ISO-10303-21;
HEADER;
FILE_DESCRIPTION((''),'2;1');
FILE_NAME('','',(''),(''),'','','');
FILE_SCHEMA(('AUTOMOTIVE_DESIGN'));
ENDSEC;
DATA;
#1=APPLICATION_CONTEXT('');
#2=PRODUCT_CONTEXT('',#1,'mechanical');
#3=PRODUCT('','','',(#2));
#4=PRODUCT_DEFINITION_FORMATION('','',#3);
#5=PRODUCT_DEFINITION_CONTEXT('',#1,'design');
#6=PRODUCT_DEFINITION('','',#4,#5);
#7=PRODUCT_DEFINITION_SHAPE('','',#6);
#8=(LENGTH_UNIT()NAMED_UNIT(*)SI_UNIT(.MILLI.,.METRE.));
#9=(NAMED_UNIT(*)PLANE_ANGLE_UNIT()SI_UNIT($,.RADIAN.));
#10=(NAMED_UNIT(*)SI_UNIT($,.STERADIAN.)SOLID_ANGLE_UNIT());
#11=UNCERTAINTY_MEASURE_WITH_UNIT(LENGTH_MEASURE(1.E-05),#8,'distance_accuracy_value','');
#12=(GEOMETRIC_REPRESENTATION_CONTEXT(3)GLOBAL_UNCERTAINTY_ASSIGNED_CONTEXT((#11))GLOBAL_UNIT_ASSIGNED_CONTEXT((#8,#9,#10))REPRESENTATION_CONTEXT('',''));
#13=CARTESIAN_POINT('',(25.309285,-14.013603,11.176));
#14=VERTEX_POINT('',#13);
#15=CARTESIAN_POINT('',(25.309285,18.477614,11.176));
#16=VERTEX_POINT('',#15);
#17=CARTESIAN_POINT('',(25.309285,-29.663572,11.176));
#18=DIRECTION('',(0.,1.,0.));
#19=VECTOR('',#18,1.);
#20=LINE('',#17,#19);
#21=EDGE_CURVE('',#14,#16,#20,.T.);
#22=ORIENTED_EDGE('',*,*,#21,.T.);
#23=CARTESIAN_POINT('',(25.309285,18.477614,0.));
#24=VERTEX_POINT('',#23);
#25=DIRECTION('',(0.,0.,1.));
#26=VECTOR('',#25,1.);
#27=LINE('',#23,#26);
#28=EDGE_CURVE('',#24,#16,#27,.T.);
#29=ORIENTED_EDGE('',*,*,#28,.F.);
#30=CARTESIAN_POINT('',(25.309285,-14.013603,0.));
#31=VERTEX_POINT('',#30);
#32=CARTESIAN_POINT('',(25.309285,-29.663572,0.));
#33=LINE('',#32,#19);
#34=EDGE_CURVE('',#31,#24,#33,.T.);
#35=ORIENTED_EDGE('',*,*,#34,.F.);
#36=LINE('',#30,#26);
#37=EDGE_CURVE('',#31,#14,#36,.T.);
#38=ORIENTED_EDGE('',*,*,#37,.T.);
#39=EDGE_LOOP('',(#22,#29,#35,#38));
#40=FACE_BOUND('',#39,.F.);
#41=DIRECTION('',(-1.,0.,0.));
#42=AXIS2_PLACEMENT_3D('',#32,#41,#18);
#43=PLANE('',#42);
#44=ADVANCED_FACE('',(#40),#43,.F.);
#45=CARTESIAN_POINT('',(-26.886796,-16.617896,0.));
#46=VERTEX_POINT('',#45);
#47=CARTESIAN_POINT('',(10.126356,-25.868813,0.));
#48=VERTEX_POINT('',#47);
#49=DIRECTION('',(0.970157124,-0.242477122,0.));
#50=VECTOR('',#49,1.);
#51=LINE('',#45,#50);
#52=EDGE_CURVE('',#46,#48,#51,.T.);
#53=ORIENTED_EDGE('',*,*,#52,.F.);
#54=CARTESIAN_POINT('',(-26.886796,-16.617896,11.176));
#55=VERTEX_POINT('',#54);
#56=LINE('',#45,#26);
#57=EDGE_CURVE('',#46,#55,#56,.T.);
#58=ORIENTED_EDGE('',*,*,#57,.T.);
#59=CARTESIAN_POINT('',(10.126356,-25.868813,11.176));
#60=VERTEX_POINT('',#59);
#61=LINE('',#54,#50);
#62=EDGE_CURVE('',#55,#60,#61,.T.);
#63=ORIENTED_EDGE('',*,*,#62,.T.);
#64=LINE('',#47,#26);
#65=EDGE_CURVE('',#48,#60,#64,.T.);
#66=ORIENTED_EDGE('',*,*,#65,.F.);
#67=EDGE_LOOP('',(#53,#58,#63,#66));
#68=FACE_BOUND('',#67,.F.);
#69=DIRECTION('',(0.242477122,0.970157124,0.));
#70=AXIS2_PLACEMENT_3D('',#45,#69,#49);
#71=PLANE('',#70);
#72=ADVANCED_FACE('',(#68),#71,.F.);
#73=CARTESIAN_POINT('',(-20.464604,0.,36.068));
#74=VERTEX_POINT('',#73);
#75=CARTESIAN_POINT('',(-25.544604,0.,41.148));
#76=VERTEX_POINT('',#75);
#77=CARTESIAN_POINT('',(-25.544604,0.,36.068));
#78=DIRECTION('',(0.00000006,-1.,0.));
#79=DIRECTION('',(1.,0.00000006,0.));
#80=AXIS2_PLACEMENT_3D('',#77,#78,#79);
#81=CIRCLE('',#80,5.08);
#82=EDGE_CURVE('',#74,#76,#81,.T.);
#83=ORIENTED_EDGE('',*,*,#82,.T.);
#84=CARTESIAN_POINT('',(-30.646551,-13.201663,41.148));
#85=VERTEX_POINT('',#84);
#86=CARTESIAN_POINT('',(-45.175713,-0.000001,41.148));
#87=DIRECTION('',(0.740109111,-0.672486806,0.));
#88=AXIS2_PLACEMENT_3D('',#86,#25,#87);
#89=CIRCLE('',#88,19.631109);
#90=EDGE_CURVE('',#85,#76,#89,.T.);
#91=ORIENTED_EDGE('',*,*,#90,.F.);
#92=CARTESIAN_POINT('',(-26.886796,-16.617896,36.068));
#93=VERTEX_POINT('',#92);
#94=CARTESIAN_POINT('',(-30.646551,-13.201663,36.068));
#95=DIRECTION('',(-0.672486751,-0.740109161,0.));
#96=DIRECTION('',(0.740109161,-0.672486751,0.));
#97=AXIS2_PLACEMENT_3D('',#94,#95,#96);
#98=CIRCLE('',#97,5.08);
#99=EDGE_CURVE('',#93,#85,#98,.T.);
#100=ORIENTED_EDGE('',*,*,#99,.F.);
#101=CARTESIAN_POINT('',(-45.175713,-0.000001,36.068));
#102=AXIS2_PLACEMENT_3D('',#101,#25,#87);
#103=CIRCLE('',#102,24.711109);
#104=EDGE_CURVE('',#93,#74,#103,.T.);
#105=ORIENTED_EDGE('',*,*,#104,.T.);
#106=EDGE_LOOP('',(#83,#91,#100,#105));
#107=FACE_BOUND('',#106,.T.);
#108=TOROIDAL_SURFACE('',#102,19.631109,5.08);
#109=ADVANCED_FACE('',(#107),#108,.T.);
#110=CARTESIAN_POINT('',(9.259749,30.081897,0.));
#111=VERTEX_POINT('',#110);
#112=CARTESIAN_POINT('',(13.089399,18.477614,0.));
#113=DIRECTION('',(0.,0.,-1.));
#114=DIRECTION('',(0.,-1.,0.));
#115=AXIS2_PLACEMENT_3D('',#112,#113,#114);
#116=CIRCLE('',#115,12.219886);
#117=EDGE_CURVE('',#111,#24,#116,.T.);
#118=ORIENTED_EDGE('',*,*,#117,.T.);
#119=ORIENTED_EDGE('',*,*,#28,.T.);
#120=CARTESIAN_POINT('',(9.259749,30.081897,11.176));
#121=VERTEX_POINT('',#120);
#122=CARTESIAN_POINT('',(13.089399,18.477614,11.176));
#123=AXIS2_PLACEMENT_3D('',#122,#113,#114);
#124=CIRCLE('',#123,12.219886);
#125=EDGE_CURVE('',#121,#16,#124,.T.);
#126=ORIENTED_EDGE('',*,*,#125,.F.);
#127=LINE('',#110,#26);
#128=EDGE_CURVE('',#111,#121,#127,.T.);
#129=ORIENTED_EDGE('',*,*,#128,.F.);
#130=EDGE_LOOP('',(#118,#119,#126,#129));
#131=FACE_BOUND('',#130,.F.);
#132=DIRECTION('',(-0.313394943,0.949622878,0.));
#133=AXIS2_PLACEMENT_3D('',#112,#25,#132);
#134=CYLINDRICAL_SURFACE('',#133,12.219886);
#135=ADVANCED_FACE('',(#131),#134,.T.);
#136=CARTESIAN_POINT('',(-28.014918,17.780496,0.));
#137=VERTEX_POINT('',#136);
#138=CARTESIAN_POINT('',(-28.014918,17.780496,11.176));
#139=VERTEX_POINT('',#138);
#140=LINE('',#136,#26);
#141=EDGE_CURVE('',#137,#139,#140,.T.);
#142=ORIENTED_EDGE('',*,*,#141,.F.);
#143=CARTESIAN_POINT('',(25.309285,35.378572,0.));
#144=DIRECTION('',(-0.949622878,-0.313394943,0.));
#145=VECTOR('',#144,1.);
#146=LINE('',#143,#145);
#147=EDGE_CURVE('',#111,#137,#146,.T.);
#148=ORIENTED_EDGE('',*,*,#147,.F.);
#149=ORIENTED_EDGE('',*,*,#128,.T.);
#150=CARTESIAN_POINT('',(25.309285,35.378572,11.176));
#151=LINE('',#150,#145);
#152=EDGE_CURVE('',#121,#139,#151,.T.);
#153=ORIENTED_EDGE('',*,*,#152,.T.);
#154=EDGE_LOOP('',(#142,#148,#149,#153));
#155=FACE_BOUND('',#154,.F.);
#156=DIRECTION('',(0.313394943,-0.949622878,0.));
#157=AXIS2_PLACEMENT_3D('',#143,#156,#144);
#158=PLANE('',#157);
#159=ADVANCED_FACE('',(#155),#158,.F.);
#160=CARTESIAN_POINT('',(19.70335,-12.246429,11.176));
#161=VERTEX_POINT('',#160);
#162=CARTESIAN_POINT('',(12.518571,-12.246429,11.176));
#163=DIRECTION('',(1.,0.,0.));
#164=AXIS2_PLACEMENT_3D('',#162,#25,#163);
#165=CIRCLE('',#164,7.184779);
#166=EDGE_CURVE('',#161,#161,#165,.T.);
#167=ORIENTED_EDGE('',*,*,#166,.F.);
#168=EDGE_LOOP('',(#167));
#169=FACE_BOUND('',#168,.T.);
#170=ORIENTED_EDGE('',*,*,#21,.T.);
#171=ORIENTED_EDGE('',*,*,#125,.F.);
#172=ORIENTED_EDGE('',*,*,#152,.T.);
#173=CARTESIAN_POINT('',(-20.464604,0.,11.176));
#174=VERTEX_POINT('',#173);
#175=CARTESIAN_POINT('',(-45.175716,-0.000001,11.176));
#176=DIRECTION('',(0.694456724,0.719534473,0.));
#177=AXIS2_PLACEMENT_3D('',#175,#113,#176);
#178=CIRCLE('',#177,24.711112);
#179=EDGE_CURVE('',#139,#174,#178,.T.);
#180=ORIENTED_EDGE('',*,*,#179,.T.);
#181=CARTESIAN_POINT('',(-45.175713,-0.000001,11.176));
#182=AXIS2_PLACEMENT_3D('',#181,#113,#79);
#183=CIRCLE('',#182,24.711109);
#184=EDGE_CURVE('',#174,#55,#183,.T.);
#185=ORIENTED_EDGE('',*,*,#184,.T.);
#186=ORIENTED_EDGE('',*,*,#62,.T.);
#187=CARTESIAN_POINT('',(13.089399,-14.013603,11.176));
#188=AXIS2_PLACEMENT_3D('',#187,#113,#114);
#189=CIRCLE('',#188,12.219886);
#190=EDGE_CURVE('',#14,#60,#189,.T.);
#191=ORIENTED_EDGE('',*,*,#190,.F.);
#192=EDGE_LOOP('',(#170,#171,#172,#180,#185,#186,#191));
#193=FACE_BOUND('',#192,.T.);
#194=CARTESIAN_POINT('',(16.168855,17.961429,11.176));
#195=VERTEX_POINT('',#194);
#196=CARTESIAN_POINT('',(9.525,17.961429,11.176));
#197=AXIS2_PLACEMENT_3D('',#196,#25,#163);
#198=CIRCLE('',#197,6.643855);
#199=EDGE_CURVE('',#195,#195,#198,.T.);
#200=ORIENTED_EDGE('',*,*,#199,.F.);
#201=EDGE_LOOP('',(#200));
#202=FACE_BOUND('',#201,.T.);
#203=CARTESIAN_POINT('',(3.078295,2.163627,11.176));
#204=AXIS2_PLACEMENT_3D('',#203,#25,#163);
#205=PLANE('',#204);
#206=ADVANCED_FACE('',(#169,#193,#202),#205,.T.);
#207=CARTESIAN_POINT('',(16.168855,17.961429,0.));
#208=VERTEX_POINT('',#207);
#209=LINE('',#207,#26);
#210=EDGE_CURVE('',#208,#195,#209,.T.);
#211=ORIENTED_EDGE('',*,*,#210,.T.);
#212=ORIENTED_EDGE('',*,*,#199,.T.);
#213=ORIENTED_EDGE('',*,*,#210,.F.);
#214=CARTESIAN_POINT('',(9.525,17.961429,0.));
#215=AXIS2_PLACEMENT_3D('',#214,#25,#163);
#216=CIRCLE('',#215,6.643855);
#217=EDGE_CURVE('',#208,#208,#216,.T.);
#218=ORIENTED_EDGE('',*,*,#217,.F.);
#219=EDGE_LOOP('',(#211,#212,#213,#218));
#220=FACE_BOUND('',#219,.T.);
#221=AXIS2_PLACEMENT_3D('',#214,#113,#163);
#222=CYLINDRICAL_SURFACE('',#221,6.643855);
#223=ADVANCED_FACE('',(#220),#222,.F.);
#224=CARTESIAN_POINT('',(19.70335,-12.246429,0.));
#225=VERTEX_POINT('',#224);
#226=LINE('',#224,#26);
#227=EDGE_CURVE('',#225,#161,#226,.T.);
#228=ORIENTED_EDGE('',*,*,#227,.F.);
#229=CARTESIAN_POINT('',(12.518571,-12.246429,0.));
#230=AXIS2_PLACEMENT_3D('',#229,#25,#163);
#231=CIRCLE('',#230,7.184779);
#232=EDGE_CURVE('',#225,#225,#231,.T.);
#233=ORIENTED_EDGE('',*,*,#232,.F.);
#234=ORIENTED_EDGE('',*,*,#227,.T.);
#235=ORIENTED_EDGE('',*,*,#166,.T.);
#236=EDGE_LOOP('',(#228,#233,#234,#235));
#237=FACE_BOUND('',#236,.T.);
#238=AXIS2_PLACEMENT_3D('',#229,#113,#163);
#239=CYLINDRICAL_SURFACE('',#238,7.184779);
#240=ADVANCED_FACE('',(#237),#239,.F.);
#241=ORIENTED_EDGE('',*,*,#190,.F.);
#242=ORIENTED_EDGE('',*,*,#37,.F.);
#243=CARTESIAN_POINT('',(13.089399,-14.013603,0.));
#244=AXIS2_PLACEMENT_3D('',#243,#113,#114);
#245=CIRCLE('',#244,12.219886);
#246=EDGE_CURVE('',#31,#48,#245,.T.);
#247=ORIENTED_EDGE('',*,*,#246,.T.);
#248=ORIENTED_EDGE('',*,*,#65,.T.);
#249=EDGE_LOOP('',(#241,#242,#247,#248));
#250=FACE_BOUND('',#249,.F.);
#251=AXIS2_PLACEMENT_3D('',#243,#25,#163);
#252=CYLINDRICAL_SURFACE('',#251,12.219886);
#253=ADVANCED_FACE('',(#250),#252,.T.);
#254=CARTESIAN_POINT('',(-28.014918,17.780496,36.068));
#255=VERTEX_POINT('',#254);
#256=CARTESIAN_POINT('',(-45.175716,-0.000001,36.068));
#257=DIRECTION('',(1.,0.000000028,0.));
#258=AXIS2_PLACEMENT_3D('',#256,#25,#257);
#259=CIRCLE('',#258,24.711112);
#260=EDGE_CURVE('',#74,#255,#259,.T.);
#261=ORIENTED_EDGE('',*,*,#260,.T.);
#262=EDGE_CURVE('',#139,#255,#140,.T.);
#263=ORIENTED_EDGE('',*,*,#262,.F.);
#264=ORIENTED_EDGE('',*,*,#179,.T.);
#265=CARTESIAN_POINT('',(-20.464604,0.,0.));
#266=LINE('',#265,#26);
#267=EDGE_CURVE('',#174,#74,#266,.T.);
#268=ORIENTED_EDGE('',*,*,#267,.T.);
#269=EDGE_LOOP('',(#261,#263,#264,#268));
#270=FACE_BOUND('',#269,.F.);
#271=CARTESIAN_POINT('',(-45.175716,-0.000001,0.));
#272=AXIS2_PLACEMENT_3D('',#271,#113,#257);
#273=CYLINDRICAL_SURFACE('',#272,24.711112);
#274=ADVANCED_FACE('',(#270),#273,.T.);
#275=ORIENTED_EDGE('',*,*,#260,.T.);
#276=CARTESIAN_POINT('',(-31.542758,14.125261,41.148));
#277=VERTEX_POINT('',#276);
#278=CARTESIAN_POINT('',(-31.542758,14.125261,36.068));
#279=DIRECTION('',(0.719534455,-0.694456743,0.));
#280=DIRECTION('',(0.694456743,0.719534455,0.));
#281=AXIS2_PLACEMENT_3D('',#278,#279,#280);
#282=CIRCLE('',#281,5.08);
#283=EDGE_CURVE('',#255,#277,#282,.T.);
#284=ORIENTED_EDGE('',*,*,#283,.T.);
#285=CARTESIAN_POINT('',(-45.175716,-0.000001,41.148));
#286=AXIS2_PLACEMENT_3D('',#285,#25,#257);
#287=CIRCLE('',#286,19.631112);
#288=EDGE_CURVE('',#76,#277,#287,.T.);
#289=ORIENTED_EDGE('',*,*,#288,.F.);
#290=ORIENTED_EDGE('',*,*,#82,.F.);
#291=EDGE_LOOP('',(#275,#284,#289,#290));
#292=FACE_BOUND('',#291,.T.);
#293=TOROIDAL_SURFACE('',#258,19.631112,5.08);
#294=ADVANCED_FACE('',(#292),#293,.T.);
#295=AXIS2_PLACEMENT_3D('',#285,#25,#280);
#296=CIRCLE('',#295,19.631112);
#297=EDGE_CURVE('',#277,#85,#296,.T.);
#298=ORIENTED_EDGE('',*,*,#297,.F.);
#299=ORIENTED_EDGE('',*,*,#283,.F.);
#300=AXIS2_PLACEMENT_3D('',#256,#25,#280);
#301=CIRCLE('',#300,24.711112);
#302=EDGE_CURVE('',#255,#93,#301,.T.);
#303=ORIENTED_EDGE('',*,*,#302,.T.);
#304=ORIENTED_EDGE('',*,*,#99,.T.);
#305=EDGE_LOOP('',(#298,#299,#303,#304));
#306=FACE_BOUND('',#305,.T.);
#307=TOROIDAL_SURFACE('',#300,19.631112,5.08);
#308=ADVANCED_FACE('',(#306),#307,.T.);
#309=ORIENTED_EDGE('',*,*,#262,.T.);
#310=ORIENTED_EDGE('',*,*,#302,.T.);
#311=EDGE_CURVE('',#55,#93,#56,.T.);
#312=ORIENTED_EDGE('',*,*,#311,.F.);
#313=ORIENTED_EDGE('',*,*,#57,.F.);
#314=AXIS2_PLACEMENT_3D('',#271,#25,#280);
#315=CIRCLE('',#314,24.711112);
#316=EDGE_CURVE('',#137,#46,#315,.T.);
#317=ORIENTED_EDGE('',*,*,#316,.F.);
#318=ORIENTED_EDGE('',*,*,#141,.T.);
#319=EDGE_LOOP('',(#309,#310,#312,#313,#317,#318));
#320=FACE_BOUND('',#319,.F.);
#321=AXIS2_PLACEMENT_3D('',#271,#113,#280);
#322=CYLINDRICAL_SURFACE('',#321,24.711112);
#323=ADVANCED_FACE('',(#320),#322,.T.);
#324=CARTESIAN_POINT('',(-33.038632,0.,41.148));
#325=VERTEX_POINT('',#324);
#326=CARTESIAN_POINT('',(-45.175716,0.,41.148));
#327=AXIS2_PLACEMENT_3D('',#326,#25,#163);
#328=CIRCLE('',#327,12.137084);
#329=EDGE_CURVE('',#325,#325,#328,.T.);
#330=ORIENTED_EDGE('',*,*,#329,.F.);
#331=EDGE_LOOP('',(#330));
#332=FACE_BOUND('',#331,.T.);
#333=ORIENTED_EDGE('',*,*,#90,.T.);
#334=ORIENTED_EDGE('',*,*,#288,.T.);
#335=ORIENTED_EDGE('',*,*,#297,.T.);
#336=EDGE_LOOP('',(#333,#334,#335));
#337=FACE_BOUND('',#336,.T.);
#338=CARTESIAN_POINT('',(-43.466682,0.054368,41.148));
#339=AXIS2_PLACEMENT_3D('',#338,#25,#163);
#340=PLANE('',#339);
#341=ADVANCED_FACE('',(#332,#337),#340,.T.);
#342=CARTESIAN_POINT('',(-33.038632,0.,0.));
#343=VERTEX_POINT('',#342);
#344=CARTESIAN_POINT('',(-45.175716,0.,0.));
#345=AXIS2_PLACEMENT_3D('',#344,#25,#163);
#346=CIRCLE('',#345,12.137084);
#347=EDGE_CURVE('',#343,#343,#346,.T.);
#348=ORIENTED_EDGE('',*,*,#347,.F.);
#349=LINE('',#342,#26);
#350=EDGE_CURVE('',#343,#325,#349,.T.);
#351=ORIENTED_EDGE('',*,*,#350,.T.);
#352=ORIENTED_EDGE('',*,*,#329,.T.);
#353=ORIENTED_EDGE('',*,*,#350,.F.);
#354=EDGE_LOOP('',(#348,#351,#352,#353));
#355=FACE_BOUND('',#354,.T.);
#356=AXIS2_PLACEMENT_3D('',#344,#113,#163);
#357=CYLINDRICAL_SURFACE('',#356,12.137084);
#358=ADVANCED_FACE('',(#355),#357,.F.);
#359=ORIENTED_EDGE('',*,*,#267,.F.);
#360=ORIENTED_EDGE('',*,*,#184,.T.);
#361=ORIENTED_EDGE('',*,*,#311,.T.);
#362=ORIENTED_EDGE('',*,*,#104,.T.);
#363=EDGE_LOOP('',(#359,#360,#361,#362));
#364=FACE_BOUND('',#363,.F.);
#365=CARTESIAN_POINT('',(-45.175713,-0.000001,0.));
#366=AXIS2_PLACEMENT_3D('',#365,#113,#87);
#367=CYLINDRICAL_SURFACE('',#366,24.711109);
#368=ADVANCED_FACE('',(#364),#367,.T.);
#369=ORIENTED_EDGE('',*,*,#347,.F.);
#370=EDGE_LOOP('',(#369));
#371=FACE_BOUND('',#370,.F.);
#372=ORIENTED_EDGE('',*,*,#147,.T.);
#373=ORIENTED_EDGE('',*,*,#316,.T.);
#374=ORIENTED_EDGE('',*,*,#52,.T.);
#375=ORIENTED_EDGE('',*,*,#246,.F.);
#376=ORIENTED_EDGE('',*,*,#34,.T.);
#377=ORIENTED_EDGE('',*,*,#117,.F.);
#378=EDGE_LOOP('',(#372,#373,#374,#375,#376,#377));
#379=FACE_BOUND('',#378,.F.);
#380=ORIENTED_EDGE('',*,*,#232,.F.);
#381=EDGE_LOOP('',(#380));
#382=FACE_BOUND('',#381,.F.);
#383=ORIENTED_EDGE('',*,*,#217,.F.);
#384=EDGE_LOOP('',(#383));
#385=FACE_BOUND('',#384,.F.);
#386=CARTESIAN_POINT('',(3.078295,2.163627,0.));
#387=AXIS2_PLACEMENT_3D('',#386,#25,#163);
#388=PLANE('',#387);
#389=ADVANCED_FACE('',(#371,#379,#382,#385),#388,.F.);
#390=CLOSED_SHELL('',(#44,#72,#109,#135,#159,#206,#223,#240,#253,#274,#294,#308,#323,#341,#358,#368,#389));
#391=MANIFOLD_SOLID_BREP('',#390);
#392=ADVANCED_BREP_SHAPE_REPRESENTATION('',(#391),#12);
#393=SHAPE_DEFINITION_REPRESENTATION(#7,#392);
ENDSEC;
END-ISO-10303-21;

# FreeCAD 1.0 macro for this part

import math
import FreeCAD as App
import Part
import Sketcher

V = App.Vector
Q = App.Units.Quantity


def edges_at(feature, points):
    """Names of the edges that pass closest to the given points."""
    edges = feature.Shape.Edges
    near = lambda p: min(range(len(edges)), key=lambda i: edges[i].distToShape(Part.Vertex(*p))[0])
    return sorted({f"Edge{near(p) + 1}" for p in points})

doc = App.newDocument("Part")
body = doc.addObject("PartDesign::Body", "Body")

# Sketch on XY plane
sketch1 = doc.addObject("Sketcher::SketchObject", "Sketch")
body.addObject(sketch1)
sketch1.AttachmentSupport = (doc.XY_Plane, [""])
sketch1.MapMode = "FlatFace"
sketch1.addGeometry([
    Part.ArcOfCircle(Part.Circle(V(-45, 0, 0), V(0, 0, 1), 25), math.radians(-42), math.radians(0)),
    Part.ArcOfCircle(Part.Circle(V(-45, 0, 0), V(0, 0, 1), 25), math.radians(0), math.radians(46)),
    Part.ArcOfCircle(Part.Circle(V(-45, 0, 0), V(0, 0, 1), 25), math.radians(46), math.radians(318)),
    Part.Circle(V(-45, 0, 0), V(0, 0, 1), 12),
], False)
sketch1.addConstraint([
    Sketcher.Constraint("Tangent", 0, 2, 1, 1),
    Sketcher.Constraint("Tangent", 1, 2, 2, 1),
    Sketcher.Constraint("Tangent", 2, 2, 0, 1),
    Sketcher.Constraint("Coincident", 3, 3, 0, 3),
    Sketcher.Constraint("PointOnObject", 0, 3, -1),
    Sketcher.Constraint("PointOnObject", 0, 2, -1),
    Sketcher.Constraint("Radius", 0, 24.711109),
    Sketcher.Constraint("Diameter", 3, 24.274168),
    Sketcher.Constraint("DistanceX", 3, 3, 1, 2, 17.160798),
    Sketcher.Constraint("DistanceX", 1, 3, 2, 2, 18.28892),
    Sketcher.Constraint("DistanceX", 0, 3, -1, 1, 45.175713),
])
pad1 = doc.addObject("PartDesign::Pad", "Pad")
body.addObject(pad1)
pad1.Profile = sketch1
pad1.Length = Q("1.62 in")
doc.recompute()

fillet = doc.addObject("PartDesign::Fillet", "Fillet")
body.addObject(fillet)
fillet.Base = (pad1, edges_at(pad1, [(-69.874, -0.81, 41.148)]))
fillet.Radius = Q("0.2 in")

# Sketch on XY plane
sketch2 = doc.addObject("Sketcher::SketchObject", "Sketch001")
body.addObject(sketch2)
sketch2.AttachmentSupport = (doc.XY_Plane, [""])
sketch2.MapMode = "FlatFace"
sketch2.addGeometry([
    Part.ArcOfCircle(Part.Circle(V(-45, 0, 0), V(0, 0, 1), 25), math.radians(0), math.radians(46)),  # 0
    Part.ArcOfCircle(Part.Circle(V(-45, 0, 0), V(0, 0, 1), 25), math.radians(-42), math.radians(0)),  # 1
    Part.LineSegment(V(-27, -17, 0), V(25, -30, 0)),  # 2
    Part.LineSegment(V(25, -30, 0), V(25, 35, 0)),  # 3
    Part.LineSegment(V(25, 35, 0), V(-28, 18, 0)),  # 4
    Part.Circle(V(13, -12, 0), V(0, 0, 1), 7),  # 5
    Part.Circle(V(10, 18, 0), V(0, 0, 1), 7),  # 6
], False)
sketch2.addConstraint([
    Sketcher.Constraint("Tangent", 0, 1, 1, 2),
    Sketcher.Constraint("Coincident", 1, 1, 2, 1),
    Sketcher.Constraint("Coincident", 2, 2, 3, 1),
    Sketcher.Constraint("Coincident", 3, 2, 4, 1),
    Sketcher.Constraint("Coincident", 4, 2, 0, 2),
    Sketcher.Constraint("Vertical", 3),
    Sketcher.Constraint("PointOnObject", 0, 3, -1),
    Sketcher.Constraint("PointOnObject", 0, 1, -1),
    Sketcher.Constraint("Diameter", 6, 13.28771),
    Sketcher.Constraint("DistanceX", -1, 1, 6, 3, Q("0.375 in")),
    Sketcher.Constraint("Radius", 0, 24.711112),
    Sketcher.Constraint("Radius", 1, 24.711109),
    Sketcher.Constraint("DistanceY", 2, 2, 6, 3, Q("1.875 in")),
    Sketcher.Constraint("DistanceX", 1, 3, 2, 2, Q("2.7749999 in")),
    Sketcher.Constraint("DistanceY", 5, 3, 3, 2, Q("1.875 in")),
    Sketcher.Constraint("Diameter", 5, 14.369558),
    Sketcher.Constraint("Distance", 4, 56.153031),
    Sketcher.Constraint("DistanceY", 3, 1, 3, 2, 65.042144),
    Sketcher.Constraint("DistanceX", -1, 1, 5, 3, 12.518571),
    Sketcher.Constraint("DistanceY", 5, 3, -1, 1, 12.246429),
    Sketcher.Constraint("DistanceX", 4, 2, -1, 1, 28.014918),
    Sketcher.Constraint("DistanceX", 0, 3, 1, 1, 18.28892),
])
pad2 = doc.addObject("PartDesign::Pad", "Pad001")
body.addObject(pad2)
pad2.Profile = sketch2
pad2.Length = Q("0.44 in")
doc.recompute()

fillet2 = doc.addObject("PartDesign::Fillet", "Fillet001")
body.addObject(fillet2)
fillet2.Base = (pad2, edges_at(pad2, [(25.309, -29.664, 5.588), (25.309, 35.379, 5.588)]))
fillet2.Radius = 12.219886

doc.recompute()
